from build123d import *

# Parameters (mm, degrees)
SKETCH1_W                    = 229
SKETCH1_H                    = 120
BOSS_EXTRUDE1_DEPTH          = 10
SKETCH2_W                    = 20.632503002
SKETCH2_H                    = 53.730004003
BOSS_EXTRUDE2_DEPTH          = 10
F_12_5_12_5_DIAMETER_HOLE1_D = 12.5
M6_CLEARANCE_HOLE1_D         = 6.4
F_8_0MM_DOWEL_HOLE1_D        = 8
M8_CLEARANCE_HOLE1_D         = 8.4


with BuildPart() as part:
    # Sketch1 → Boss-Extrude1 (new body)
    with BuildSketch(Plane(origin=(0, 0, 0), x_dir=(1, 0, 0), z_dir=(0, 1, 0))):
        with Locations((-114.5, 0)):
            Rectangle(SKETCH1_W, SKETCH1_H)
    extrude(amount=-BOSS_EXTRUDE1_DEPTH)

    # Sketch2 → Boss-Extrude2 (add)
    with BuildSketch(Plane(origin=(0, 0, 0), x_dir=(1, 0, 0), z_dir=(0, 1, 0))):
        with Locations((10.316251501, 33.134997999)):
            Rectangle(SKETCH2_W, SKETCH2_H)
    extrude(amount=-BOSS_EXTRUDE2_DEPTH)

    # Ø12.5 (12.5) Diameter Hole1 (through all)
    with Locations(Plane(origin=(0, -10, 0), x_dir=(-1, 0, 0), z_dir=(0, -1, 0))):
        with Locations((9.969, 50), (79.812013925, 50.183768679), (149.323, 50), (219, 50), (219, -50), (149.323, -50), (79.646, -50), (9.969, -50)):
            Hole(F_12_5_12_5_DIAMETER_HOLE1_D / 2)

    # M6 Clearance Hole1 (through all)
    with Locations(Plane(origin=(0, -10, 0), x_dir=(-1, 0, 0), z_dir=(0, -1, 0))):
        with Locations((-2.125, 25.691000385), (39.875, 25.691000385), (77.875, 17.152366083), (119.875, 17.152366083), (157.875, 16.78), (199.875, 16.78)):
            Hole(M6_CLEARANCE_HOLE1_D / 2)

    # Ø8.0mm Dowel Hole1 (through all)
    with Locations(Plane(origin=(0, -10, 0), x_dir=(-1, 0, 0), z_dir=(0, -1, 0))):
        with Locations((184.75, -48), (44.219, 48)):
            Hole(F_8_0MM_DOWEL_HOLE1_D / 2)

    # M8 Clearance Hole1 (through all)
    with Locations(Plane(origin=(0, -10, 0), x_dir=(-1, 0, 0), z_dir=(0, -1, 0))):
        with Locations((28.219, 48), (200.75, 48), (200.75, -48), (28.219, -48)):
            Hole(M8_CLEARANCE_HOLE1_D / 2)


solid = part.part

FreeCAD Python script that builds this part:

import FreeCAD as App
import Part
import Sketcher
from FreeCAD import Vector
Q = App.Units.Quantity


def add_polygon(sketch, points):
    """Adds a closed chain of lines whose ends are joined by coincident constraints."""
    first, n = sketch.GeometryCount, len(points)
    for a, b in zip(points, points[1:] + points[:1]):
        sketch.addGeometry(Part.LineSegment(App.Vector(*a, 0), App.Vector(*b, 0)), False)
    for i in range(n):
        sketch.addConstraint(Sketcher.Constraint("Coincident", first + i, 2, first + (i + 1) % n, 1))

doc = App.newDocument("Part")
body = doc.addObject("PartDesign::Body", "Body")

# Sketch on XZ plane
sketch1 = body.newObject("Sketcher::SketchObject", "Sketch")
sketch1.AttachmentSupport = (doc.getObject("XZ_Plane"), [""])
sketch1.MapMode = "FlatFace"
add_polygon(sketch1, [(-229, -60), (-229, 60), (0, 60), (0, -60)])  # lines 0-3
sketch1.addConstraint(Sketcher.Constraint("Vertical", 0))
sketch1.addConstraint(Sketcher.Constraint("Horizontal", 1))
sketch1.addConstraint(Sketcher.Constraint("Vertical", 2))
sketch1.addConstraint(Sketcher.Constraint("Horizontal", 3))
sketch1.addConstraint(Sketcher.Constraint("Symmetric", 1, 2, 2, 2, -1, 1))
sketch1.addConstraint(Sketcher.Constraint("DistanceX", 1, 1, 1, 2, Q("229 mm")))
sketch1.addConstraint(Sketcher.Constraint("DistanceY", 0, 1, 0, 2, Q("120 mm")))
pad1 = body.newObject("PartDesign::Pad", "Pad")
pad1.Profile = sketch1
pad1.Length = 10

# Sketch on XZ plane
sketch2 = body.newObject("Sketcher::SketchObject", "Sketch001")
sketch2.AttachmentSupport = (doc.getObject("XZ_Plane"), [""])
sketch2.MapMode = "FlatFace"
add_polygon(sketch2, [(0, -60), (0, -6.269996), (20.632503, -6.269996), (20.632503, -60)])  # lines 0-3
sketch2.addConstraint(Sketcher.Constraint("Vertical", 0))
sketch2.addConstraint(Sketcher.Constraint("Horizontal", 1))
sketch2.addConstraint(Sketcher.Constraint("Vertical", 2))
sketch2.addConstraint(Sketcher.Constraint("Horizontal", 3))
sketch2.addConstraint(Sketcher.Constraint("PointOnObject", 0, 2, -2))
sketch2.addConstraint(Sketcher.Constraint("DistanceY", 2, 2, -1, 1, Q("60 mm")))
sketch2.addConstraint(Sketcher.Constraint("DistanceX", 1, 1, 1, 2, Q("20.632503 mm")))
sketch2.addConstraint(Sketcher.Constraint("DistanceY", 0, 1, 0, 2, Q("53.730004 mm")))
pad2 = body.newObject("PartDesign::Pad", "Pad001")
pad2.Profile = sketch2
pad2.Length = 10

# Sketch on XZ plane
sketch3 = body.newObject("Sketcher::SketchObject", "Sketch002")
sketch3.AttachmentSupport = (doc.getObject("XZ_Plane"), [""])
sketch3.MapMode = "FlatFace"
sketch3.AttachmentOffset = App.Placement(Vector(0, 0, 10), App.Rotation())
sketch3.addGeometry(Part.Circle(Vector(-9.969, -50, 0), Vector(0, 0, 1), 6.25), False)
sketch3.addGeometry(Part.Circle(Vector(-79.812014, -50.183769, 0), Vector(0, 0, 1), 6.25), False)
sketch3.addGeometry(Part.Circle(Vector(-149.323, -50, 0), Vector(0, 0, 1), 6.25), False)
sketch3.addGeometry(Part.Circle(Vector(-219, -50, 0), Vector(0, 0, 1), 6.25), False)
sketch3.addGeometry(Part.Circle(Vector(-219, 50, 0), Vector(0, 0, 1), 6.25), False)
sketch3.addGeometry(Part.Circle(Vector(-149.323, 50, 0), Vector(0, 0, 1), 6.25), False)
sketch3.addGeometry(Part.Circle(Vector(-79.646, 50, 0), Vector(0, 0, 1), 6.25), False)
sketch3.addGeometry(Part.Circle(Vector(-9.969, 50, 0), Vector(0, 0, 1), 6.25), False)
sketch3.addConstraint(Sketcher.Constraint("Equal", 0, 1))
sketch3.addConstraint(Sketcher.Constraint("Equal", 1, 2))
sketch3.addConstraint(Sketcher.Constraint("Equal", 2, 3))
sketch3.addConstraint(Sketcher.Constraint("Equal", 3, 4))
sketch3.addConstraint(Sketcher.Constraint("Equal", 4, 5))
sketch3.addConstraint(Sketcher.Constraint("Equal", 5, 6))
sketch3.addConstraint(Sketcher.Constraint("Equal", 6, 7))
sketch3.addConstraint(Sketcher.Constraint("Symmetric", 3, 3, 4, 3, -1))
sketch3.addConstraint(Sketcher.Constraint("Symmetric", 2, 3, 5, 3, -1))
sketch3.addConstraint(Sketcher.Constraint("Symmetric", 0, 3, 7, 3, -1))
sketch3.addConstraint(Sketcher.Constraint("Horizontal", 0, 3, 2, 3))
sketch3.addConstraint(Sketcher.Constraint("Horizontal", 2, 3, 3, 3))
sketch3.addConstraint(Sketcher.Constraint("Horizontal", 5, 3, 6, 3))
sketch3.addConstraint(Sketcher.Constraint("Diameter", 0, Q("12.5 mm")))
sketch3.addConstraint(Sketcher.Constraint("DistanceY", 0, 3, -1, 1, Q("50 mm")))
sketch3.addConstraint(Sketcher.Constraint("DistanceX", 3, 3, -1, 1, Q("219 mm")))
sketch3.addConstraint(Sketcher.Constraint("DistanceX", 0, 3, -1, 1, Q("9.969 mm")))
sketch3.addConstraint(Sketcher.Constraint("DistanceX", 2, 3, -1, 1, Q("149.323 mm")))
sketch3.addConstraint(Sketcher.Constraint("DistanceX", 6, 3, -1, 1, Q("79.646 mm")))
sketch3.addConstraint(Sketcher.Constraint("DistanceY", 1, 3, -1, 1, Q("50.183769 mm")))
sketch3.addConstraint(Sketcher.Constraint("DistanceX", 1, 3, -1, 1, Q("79.812014 mm")))
doc.recompute()
hole = body.newObject("PartDesign::Hole", "Hole")
hole.Profile = sketch3
hole.ThreadType = "None"
hole.Diameter = 12.5
hole.DepthType = "ThroughAll"

# Sketch on XZ plane
sketch4 = body.newObject("Sketcher::SketchObject", "Sketch003")
sketch4.AttachmentSupport = (doc.getObject("XZ_Plane"), [""])
sketch4.MapMode = "FlatFace"
sketch4.AttachmentOffset = App.Placement(Vector(0, 0, 10), App.Rotation())
sketch4.addGeometry(Part.Circle(Vector(2.125, -25.691, 0), Vector(0, 0, 1), 3.2), False)
sketch4.addGeometry(Part.Circle(Vector(-39.875, -25.691, 0), Vector(0, 0, 1), 3.2), False)
sketch4.addGeometry(Part.Circle(Vector(-77.875, -17.152366, 0), Vector(0, 0, 1), 3.2), False)
sketch4.addGeometry(Part.Circle(Vector(-119.875, -17.152366, 0), Vector(0, 0, 1), 3.2), False)
sketch4.addGeometry(Part.Circle(Vector(-157.875, -16.78, 0), Vector(0, 0, 1), 3.2), False)
sketch4.addGeometry(Part.Circle(Vector(-199.875, -16.78, 0), Vector(0, 0, 1), 3.2), False)
sketch4.addConstraint(Sketcher.Constraint("Equal", 0, 1))
sketch4.addConstraint(Sketcher.Constraint("Equal", 1, 2))
sketch4.addConstraint(Sketcher.Constraint("Equal", 2, 3))
sketch4.addConstraint(Sketcher.Constraint("Equal", 3, 4))
sketch4.addConstraint(Sketcher.Constraint("Equal", 4, 5))
sketch4.addConstraint(Sketcher.Constraint("Horizontal", 0, 3, 1, 3))
sketch4.addConstraint(Sketcher.Constraint("Horizontal", 2, 3, 3, 3))
sketch4.addConstraint(Sketcher.Constraint("Horizontal", 4, 3, 5, 3))
sketch4.addConstraint(Sketcher.Constraint("Diameter", 0, Q("6.4 mm")))
sketch4.addConstraint(Sketcher.Constraint("DistanceX", 1, 3, 0, 3, Q("42 mm")))
sketch4.addConstraint(Sketcher.Constraint("DistanceX", 2, 3, 1, 3, Q("38 mm")))
sketch4.addConstraint(Sketcher.Constraint("DistanceX", 3, 3, 2, 3, Q("42 mm")))
sketch4.addConstraint(Sketcher.Constraint("DistanceX", 4, 3, 3, 3, Q("38 mm")))
sketch4.addConstraint(Sketcher.Constraint("DistanceX", 5, 3, 4, 3, Q("42 mm")))
sketch4.addConstraint(Sketcher.Constraint("DistanceY", 4, 3, -1, 1, Q("16.78 mm")))
sketch4.addConstraint(Sketcher.Constraint("DistanceX", -1, 1, 0, 3, Q("2.125 mm")))
sketch4.addConstraint(Sketcher.Constraint("DistanceY", 0, 3, -1, 1, Q("25.691 mm")))
sketch4.addConstraint(Sketcher.Constraint("DistanceY", 2, 3, -1, 1, Q("17.152366 mm")))
doc.recompute()
hole2 = body.newObject("PartDesign::Hole", "Hole001")
hole2.Profile = sketch4
hole2.ThreadType = "None"
hole2.Diameter = 6.4
hole2.DepthType = "ThroughAll"

# Sketch on XZ plane
sketch5 = body.newObject("Sketcher::SketchObject", "Sketch004")
sketch5.AttachmentSupport = (doc.getObject("XZ_Plane"), [""])
sketch5.MapMode = "FlatFace"
sketch5.AttachmentOffset = App.Placement(Vector(0, 0, 10), App.Rotation())
sketch5.addGeometry(Part.Circle(Vector(-184.75, 48, 0), Vector(0, 0, 1), 4), False)
sketch5.addGeometry(Part.Circle(Vector(-44.219, -48, 0), Vector(0, 0, 1), 4), False)
sketch5.addConstraint(Sketcher.Constraint("Equal", 0, 1))
sketch5.addConstraint(Sketcher.Constraint("Diameter", 0, Q("8 mm")))
sketch5.addConstraint(Sketcher.Constraint("DistanceY", -1, 1, 0, 3, Q("48 mm")))
sketch5.addConstraint(Sketcher.Constraint("DistanceY", 1, 3, -1, 1, Q("48 mm")))
sketch5.addConstraint(Sketcher.Constraint("DistanceX", 0, 3, -1, 1, Q("184.75 mm")))
sketch5.addConstraint(Sketcher.Constraint("DistanceX", 1, 3, -1, 1, Q("44.219 mm")))
doc.recompute()
hole3 = body.newObject("PartDesign::Hole", "Hole002")
hole3.Profile = sketch5
hole3.ThreadType = "None"
hole3.Diameter = 8
hole3.DepthType = "ThroughAll"

# Sketch on XZ plane
sketch6 = body.newObject("Sketcher::SketchObject", "Sketch005")
sketch6.AttachmentSupport = (doc.getObject("XZ_Plane"), [""])
sketch6.MapMode = "FlatFace"
sketch6.AttachmentOffset = App.Placement(Vector(0, 0, 10), App.Rotation())
sketch6.addGeometry(Part.Circle(Vector(-28.219, -48, 0), Vector(0, 0, 1), 4.2), False)
sketch6.addGeometry(Part.Circle(Vector(-200.75, -48, 0), Vector(0, 0, 1), 4.2), False)
sketch6.addGeometry(Part.Circle(Vector(-200.75, 48, 0), Vector(0, 0, 1), 4.2), False)
sketch6.addGeometry(Part.Circle(Vector(-28.219, 48, 0), Vector(0, 0, 1), 4.2), False)
sketch6.addConstraint(Sketcher.Constraint("Equal", 0, 1))
sketch6.addConstraint(Sketcher.Constraint("Equal", 1, 2))
sketch6.addConstraint(Sketcher.Constraint("Equal", 2, 3))
sketch6.addConstraint(Sketcher.Constraint("Symmetric", 1, 3, 2, 3, -1))
sketch6.addConstraint(Sketcher.Constraint("Symmetric", 0, 3, 3, 3, -1))
sketch6.addConstraint(Sketcher.Constraint("Horizontal", 0, 3, 1, 3))
sketch6.addConstraint(Sketcher.Constraint("Diameter", 0, Q("8.4 mm")))
sketch6.addConstraint(Sketcher.Constraint("DistanceY", 0, 3, -1, 1, Q("48 mm")))
sketch6.addConstraint(Sketcher.Constraint("DistanceX", 1, 3, -1, 1, Q("200.75 mm")))
sketch6.addConstraint(Sketcher.Constraint("DistanceX", 0, 3, -1, 1, Q("28.219 mm")))
doc.recompute()
hole4 = body.newObject("PartDesign::Hole", "Hole003")
hole4.Profile = sketch6
hole4.ThreadType = "None"
hole4.Diameter = 8.4
hole4.DepthType = "ThroughAll"

doc.recompute()
